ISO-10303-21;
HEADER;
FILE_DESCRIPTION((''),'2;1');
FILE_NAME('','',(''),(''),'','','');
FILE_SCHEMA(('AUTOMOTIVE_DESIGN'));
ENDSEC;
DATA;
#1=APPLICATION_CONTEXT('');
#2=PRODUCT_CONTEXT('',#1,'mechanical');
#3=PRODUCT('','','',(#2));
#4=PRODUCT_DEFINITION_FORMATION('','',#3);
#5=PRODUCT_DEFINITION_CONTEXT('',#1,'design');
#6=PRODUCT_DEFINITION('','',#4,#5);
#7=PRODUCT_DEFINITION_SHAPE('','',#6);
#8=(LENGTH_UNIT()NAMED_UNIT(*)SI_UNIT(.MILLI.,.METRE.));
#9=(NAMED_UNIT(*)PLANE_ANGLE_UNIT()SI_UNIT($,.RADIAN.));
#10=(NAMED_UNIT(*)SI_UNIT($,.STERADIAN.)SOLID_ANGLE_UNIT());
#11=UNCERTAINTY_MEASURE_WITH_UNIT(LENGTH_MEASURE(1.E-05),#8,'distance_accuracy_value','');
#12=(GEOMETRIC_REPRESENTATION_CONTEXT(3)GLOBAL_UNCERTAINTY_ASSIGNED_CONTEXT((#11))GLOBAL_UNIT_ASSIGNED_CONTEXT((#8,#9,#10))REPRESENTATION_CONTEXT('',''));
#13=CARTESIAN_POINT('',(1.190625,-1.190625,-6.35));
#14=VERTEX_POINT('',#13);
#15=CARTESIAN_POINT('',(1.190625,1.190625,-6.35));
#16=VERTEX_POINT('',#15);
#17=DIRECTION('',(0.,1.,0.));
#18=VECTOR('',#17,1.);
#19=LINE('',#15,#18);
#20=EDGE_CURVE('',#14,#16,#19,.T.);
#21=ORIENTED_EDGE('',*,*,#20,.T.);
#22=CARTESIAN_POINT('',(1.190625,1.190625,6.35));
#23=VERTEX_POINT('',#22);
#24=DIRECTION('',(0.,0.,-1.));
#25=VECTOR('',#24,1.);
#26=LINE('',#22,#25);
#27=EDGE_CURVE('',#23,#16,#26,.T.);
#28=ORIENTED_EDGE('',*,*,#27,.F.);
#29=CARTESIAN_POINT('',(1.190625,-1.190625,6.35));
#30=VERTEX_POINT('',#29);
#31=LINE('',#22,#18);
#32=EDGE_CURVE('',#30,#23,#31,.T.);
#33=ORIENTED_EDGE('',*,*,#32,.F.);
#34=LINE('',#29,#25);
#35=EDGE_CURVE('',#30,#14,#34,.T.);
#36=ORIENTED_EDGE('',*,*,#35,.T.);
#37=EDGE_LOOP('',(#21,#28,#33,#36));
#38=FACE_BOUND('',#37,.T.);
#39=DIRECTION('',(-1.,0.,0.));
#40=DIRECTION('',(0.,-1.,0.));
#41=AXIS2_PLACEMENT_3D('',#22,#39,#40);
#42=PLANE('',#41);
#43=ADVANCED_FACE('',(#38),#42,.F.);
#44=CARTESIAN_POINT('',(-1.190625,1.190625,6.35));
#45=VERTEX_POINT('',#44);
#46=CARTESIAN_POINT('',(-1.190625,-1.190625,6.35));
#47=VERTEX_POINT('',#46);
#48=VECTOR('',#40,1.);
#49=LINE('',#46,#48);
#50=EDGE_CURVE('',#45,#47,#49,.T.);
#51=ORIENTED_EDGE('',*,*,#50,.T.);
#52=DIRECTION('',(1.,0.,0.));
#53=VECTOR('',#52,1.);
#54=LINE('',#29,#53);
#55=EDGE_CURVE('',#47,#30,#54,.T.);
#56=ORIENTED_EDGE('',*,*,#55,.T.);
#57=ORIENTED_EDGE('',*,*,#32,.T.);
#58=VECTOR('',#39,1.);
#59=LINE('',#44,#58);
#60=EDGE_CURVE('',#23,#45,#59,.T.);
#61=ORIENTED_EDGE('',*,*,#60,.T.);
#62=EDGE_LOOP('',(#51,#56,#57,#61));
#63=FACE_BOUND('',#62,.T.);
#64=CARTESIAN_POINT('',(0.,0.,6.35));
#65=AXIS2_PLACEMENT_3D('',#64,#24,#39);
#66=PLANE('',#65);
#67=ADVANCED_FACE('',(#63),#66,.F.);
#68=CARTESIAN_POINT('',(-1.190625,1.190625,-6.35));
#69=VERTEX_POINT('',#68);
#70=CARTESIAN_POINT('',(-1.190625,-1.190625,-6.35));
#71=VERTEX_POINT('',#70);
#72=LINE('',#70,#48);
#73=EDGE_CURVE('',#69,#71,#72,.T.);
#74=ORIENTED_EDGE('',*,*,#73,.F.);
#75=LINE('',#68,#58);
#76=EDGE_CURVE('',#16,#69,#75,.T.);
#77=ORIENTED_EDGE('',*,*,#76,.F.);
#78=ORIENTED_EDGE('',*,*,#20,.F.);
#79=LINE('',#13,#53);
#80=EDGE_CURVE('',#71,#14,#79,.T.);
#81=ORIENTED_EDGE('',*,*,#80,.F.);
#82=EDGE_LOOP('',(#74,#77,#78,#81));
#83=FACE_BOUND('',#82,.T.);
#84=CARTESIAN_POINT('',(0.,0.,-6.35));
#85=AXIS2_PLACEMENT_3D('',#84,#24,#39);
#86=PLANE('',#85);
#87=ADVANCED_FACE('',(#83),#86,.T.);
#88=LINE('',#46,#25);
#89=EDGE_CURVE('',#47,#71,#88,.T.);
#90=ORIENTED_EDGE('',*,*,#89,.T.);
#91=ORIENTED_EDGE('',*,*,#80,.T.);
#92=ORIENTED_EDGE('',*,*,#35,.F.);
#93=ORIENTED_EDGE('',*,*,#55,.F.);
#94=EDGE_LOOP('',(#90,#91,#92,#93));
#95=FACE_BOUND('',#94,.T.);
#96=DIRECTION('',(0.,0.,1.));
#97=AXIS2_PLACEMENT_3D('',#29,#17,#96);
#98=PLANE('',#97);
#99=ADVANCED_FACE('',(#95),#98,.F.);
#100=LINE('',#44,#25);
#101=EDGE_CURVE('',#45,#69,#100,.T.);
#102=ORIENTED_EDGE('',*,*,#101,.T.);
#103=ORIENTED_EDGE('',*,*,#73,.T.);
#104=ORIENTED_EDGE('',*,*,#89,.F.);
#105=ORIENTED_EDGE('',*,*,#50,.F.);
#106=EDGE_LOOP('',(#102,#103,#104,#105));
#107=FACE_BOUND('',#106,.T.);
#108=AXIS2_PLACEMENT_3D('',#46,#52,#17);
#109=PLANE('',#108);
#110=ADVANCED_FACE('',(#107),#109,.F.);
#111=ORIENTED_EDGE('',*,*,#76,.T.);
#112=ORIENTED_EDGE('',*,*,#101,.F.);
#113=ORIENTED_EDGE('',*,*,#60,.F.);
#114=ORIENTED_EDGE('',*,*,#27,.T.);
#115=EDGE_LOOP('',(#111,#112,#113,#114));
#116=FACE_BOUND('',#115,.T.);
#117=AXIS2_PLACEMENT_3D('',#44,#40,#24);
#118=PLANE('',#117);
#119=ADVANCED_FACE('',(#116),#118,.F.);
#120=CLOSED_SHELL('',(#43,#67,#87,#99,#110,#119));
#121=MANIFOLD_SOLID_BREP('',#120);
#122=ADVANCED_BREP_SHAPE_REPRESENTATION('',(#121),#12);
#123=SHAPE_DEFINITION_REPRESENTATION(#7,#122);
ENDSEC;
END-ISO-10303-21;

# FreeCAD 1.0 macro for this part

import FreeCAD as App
import Part
import Sketcher
Q = App.Units.Quantity

doc = App.newDocument("Part")
body = doc.addObject("PartDesign::Body", "Body")

# Sketch on XY plane
sketch1 = body.newObject("Sketcher::SketchObject", "Sketch")
sketch1.AttachmentSupport = (doc.getObject("XY_Plane"), [""])
sketch1.MapMode = "FlatFace"
sketch1.addGeometry([
    Part.LineSegment(App.Vector(-1.2, 1.2, 0), App.Vector(-1.2, -1.2, 0)),
    Part.LineSegment(App.Vector(-1.2, -1.2, 0), App.Vector(1.2, -1.2, 0)),
    Part.LineSegment(App.Vector(1.2, -1.2, 0), App.Vector(1.2, 1.2, 0)),
    Part.LineSegment(App.Vector(1.2, 1.2, 0), App.Vector(-1.2, 1.2, 0)),
], False)
sketch1.addConstraint([
    Sketcher.Constraint("Coincident", 0, 2, 1, 1),
    Sketcher.Constraint("Coincident", 1, 2, 2, 1),
    Sketcher.Constraint("Coincident", 2, 2, 3, 1),
    Sketcher.Constraint("Coincident", 3, 2, 0, 1),
    Sketcher.Constraint("Vertical", 0),
    Sketcher.Constraint("Horizontal", 1),
    Sketcher.Constraint("Vertical", 2),
    Sketcher.Constraint("Horizontal", 3),
    Sketcher.Constraint("Symmetric", 0, 2, 2, 2, -1, 1),
    Sketcher.Constraint("Equal", 3, 0),
    Sketcher.Constraint("DistanceX", 1, 1, 1, 2, Q("0.09375 in")),
])
pad1 = body.newObject("PartDesign::Pad", "Pad")
pad1.Profile = sketch1
pad1.Type = "TwoLengths"
pad1.Length = Q("0.25 in")
pad1.Length2 = Q("0.25 in")

doc.recompute()
